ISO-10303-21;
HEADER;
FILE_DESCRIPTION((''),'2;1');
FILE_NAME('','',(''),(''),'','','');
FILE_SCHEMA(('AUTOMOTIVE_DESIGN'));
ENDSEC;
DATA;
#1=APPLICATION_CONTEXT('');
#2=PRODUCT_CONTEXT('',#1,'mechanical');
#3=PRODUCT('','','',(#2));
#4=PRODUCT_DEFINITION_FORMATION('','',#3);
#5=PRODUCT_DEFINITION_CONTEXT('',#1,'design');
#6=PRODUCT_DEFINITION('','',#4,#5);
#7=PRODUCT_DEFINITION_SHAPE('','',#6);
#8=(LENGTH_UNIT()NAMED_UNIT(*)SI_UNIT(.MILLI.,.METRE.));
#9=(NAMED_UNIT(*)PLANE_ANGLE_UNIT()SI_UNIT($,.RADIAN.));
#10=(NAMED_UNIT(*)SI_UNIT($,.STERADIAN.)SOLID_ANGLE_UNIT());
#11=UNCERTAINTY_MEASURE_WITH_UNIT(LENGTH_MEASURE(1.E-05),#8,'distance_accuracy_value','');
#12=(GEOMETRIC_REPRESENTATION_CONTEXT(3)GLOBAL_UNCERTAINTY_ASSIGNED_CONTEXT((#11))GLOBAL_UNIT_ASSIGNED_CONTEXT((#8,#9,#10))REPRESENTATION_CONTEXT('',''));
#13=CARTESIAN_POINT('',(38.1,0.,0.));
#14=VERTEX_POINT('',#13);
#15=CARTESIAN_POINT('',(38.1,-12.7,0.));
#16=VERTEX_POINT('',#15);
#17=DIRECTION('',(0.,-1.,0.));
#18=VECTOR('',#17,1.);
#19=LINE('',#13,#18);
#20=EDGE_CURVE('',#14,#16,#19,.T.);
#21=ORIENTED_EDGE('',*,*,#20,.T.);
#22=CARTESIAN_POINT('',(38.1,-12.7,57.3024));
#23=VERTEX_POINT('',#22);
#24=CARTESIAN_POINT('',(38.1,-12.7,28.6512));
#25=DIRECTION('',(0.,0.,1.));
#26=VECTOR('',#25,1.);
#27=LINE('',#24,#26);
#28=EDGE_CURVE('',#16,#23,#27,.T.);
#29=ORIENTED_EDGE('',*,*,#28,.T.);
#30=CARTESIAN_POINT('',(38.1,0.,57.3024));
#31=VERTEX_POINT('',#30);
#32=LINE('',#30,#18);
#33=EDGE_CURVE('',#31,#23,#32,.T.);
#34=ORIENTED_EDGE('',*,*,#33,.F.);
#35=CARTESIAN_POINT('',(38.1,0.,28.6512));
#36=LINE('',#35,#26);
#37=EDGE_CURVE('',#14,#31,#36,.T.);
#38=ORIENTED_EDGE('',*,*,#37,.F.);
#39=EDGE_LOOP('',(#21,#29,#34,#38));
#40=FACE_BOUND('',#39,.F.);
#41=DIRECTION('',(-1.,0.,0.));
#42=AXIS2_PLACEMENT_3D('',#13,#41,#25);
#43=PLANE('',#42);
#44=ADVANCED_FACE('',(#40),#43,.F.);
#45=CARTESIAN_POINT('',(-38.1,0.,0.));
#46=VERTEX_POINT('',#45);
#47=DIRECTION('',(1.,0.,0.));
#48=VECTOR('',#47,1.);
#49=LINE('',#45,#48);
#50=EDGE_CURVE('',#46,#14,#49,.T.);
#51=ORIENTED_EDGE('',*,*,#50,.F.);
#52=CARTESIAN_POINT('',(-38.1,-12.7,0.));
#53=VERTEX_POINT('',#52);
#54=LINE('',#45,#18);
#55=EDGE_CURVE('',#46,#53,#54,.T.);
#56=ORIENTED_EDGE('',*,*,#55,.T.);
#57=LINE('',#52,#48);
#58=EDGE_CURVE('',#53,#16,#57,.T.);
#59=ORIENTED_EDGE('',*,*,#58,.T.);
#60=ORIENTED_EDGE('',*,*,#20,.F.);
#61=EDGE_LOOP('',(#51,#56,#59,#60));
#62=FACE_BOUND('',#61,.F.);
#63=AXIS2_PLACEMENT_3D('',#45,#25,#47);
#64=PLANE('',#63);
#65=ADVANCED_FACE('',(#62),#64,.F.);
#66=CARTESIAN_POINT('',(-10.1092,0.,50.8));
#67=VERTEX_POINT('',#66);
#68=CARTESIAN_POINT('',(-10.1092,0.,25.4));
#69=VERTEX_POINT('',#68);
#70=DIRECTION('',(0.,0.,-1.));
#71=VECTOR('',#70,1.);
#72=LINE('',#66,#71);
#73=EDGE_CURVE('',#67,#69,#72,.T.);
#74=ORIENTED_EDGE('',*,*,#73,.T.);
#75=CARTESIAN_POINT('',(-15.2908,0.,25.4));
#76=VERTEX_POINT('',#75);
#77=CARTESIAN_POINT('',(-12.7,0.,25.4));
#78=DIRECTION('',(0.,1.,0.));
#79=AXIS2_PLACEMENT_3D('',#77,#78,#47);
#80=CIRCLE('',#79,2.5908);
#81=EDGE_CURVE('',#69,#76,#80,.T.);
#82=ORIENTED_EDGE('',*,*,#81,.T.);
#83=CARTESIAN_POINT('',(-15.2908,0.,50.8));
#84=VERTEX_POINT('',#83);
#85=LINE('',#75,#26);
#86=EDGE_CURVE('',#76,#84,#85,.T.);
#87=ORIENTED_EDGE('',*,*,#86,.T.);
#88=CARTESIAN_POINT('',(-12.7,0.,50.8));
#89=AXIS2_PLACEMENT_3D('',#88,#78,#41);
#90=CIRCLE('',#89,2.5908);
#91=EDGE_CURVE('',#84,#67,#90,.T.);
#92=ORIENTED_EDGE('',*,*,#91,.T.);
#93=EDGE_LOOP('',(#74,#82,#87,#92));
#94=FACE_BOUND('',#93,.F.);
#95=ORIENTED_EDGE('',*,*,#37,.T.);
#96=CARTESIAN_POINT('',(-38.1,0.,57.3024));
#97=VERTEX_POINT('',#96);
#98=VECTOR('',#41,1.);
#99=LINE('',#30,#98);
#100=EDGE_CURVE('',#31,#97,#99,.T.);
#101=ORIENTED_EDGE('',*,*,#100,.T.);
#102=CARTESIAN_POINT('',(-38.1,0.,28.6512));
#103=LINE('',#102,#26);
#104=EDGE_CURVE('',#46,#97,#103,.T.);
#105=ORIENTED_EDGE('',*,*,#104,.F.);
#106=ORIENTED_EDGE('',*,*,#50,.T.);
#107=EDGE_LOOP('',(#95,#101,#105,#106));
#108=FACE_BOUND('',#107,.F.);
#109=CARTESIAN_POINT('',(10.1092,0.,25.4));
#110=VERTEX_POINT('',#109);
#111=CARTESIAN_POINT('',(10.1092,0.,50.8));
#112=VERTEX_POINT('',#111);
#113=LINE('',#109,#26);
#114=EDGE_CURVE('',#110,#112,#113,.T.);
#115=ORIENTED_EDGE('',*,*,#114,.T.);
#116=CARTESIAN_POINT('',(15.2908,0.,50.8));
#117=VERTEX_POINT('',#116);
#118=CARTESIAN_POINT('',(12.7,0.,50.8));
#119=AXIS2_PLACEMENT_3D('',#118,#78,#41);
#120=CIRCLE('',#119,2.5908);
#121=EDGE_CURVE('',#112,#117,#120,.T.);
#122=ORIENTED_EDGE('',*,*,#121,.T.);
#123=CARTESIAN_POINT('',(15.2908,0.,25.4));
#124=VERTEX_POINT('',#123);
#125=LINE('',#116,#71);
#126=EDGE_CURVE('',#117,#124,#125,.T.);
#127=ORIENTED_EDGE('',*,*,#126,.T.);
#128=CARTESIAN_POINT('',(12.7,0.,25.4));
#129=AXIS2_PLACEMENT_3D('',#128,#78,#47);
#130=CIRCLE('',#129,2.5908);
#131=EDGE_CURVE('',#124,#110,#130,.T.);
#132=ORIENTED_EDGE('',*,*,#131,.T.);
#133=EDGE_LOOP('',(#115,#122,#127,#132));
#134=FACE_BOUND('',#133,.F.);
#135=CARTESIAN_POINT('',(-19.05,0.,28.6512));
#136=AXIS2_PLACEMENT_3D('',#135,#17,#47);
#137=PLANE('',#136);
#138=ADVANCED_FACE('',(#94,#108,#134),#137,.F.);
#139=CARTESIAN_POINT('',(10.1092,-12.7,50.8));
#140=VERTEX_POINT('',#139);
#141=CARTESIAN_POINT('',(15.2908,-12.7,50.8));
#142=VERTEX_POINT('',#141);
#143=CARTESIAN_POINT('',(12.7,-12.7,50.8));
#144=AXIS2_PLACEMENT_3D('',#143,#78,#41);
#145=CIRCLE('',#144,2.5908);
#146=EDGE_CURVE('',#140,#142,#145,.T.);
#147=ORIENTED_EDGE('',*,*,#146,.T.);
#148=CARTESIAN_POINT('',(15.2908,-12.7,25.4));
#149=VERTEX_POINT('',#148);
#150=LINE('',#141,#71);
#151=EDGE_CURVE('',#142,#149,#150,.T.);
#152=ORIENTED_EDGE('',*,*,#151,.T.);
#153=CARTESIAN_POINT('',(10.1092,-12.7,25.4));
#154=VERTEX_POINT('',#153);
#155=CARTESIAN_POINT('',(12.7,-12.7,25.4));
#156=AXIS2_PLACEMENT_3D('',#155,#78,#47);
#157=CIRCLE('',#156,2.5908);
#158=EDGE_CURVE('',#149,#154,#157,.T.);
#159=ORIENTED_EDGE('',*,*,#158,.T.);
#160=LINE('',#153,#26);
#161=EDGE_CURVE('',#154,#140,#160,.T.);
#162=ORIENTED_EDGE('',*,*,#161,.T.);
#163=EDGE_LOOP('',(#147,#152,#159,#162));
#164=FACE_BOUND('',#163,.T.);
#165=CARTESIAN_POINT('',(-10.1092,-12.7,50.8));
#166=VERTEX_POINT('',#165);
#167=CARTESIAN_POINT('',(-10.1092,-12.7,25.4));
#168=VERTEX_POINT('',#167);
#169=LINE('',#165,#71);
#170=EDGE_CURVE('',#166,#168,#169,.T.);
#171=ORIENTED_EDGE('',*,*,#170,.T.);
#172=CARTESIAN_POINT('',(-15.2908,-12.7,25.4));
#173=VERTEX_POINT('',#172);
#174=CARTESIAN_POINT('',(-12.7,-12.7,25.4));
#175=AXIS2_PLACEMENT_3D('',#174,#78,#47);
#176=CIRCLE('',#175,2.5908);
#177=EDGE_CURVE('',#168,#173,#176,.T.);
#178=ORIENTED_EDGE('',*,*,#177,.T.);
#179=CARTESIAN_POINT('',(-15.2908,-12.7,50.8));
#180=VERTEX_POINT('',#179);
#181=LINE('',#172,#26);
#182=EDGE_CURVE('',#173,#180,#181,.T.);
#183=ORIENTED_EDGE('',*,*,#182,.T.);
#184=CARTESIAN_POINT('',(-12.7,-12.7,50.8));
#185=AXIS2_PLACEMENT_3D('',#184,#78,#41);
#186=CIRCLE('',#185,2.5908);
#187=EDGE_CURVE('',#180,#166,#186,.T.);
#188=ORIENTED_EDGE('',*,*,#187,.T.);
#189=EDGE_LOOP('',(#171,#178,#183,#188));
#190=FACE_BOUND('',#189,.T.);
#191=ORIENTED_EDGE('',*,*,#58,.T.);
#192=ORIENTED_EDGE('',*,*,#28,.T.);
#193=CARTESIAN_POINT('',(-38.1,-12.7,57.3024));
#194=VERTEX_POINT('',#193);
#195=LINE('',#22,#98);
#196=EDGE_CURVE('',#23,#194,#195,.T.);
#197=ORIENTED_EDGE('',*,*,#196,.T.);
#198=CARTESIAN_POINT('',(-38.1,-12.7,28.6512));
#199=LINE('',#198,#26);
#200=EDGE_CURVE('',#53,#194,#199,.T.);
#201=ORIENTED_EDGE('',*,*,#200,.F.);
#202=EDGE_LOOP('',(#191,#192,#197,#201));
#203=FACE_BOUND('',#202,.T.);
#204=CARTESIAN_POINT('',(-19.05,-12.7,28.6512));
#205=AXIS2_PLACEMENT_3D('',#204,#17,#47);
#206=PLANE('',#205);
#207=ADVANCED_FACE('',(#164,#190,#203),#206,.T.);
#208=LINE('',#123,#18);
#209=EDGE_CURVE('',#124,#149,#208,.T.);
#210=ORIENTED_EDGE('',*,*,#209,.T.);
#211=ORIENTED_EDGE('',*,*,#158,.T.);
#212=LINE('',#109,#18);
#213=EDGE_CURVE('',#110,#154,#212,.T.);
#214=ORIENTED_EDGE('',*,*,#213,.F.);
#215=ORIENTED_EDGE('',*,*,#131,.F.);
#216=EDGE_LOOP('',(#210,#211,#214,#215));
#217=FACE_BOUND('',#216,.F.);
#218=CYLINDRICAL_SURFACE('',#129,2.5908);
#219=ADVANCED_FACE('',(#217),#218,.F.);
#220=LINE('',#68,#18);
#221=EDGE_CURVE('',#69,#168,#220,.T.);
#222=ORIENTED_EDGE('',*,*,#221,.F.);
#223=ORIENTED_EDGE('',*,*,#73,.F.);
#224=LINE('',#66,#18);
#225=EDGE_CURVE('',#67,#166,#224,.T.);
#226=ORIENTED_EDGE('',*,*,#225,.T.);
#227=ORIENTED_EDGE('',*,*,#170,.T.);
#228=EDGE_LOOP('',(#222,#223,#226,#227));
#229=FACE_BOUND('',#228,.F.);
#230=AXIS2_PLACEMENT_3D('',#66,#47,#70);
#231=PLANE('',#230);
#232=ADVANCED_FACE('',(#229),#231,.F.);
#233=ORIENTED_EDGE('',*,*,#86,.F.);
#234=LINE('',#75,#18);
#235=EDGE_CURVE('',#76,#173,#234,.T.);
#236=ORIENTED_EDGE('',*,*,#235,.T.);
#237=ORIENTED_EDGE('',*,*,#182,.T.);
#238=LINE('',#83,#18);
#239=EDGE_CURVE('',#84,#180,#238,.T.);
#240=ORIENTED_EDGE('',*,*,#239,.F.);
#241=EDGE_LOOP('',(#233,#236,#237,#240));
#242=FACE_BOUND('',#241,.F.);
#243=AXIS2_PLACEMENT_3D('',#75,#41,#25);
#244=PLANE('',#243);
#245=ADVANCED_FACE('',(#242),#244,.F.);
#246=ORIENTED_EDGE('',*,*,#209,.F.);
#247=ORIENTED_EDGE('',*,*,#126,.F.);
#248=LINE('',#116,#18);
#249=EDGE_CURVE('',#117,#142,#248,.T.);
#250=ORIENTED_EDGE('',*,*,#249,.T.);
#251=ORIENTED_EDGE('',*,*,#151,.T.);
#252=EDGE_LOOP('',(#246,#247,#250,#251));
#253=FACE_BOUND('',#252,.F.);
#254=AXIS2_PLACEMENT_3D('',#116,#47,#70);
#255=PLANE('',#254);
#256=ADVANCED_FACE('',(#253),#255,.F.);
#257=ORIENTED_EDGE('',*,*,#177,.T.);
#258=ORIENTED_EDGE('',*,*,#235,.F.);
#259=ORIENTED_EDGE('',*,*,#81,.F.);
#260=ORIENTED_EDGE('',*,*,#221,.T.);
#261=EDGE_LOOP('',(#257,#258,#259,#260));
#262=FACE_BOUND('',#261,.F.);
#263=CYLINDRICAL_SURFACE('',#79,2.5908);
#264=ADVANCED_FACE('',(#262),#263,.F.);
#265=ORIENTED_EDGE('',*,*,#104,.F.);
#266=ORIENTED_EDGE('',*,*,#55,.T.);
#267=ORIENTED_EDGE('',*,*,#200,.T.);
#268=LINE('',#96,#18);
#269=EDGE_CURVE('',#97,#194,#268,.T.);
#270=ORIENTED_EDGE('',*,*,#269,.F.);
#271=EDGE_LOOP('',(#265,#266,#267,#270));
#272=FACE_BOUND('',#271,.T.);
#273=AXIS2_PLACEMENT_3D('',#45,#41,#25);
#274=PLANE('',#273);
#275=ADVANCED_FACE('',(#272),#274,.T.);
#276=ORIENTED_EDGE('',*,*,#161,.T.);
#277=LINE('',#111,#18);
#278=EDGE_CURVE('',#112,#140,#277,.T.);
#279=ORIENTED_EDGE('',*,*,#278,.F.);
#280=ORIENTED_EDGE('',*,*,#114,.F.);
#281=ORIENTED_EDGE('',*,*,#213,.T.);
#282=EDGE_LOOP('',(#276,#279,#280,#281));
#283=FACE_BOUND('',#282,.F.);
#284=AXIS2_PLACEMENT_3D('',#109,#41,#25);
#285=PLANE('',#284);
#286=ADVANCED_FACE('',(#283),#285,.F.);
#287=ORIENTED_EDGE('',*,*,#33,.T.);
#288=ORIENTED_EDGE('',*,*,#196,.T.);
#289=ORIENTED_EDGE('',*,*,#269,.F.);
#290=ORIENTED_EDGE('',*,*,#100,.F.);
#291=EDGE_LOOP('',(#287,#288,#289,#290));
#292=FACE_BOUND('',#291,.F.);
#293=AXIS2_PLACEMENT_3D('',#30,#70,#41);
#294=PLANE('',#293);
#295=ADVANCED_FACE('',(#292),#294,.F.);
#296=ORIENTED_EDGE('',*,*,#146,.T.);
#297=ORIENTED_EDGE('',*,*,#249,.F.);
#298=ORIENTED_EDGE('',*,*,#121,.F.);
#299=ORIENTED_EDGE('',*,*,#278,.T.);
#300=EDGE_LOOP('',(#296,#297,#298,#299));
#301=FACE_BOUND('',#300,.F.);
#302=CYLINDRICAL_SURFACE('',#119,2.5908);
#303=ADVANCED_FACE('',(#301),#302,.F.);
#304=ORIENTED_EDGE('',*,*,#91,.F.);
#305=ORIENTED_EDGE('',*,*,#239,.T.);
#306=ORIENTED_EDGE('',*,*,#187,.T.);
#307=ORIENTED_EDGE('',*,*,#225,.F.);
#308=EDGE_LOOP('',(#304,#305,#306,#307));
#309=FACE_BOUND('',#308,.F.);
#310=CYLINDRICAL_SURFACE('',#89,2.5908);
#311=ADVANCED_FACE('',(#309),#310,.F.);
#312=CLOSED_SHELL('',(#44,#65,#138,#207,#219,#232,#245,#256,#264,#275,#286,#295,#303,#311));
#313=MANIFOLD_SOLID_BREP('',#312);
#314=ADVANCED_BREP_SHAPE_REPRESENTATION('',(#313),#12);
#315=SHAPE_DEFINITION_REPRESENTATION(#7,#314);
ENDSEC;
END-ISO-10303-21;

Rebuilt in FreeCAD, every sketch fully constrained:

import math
import FreeCAD as App
import Part
import Sketcher
from FreeCAD import Vector
Q = App.Units.Quantity

doc = App.newDocument("Part")
body = doc.addObject("PartDesign::Body", "Body")

# Sketch on XZ plane
sketch1 = doc.addObject("Sketcher::SketchObject", "Sketch")
body.addObject(sketch1)
sketch1.AttachmentSupport = (doc.XZ_Plane, [""])
sketch1.MapMode = "FlatFace"
sketch1.addGeometry(Part.LineSegment(Vector(-38.1, 57.3, 0), Vector(-38.1, 0, 0)), False)
sketch1.addGeometry(Part.LineSegment(Vector(-38.1, 0, 0), Vector(38.1, 0, 0)), False)
sketch1.addGeometry(Part.LineSegment(Vector(38.1, 0, 0), Vector(38.1, 57.3, 0)), False)
sketch1.addGeometry(Part.LineSegment(Vector(38.1, 57.3, 0), Vector(-38.1, 57.3, 0)), False)
sketch1.addGeometry(Part.ArcOfCircle(Part.Circle(Vector(-12.7, 50.8, 0), Vector(0, 0, 1), 2.6), math.radians(0), math.radians(180)), False)
sketch1.addGeometry(Part.LineSegment(Vector(-10.1, 50.8, 0), Vector(-10.1, 25.4, 0)), False)
sketch1.addGeometry(Part.ArcOfCircle(Part.Circle(Vector(-12.7, 25.4, 0), Vector(0, 0, 1), 2.6), math.radians(180), math.radians(360)), False)
sketch1.addGeometry(Part.LineSegment(Vector(-15.3, 25.4, 0), Vector(-15.3, 50.8, 0)), False)
sketch1.addGeometry(Part.ArcOfCircle(Part.Circle(Vector(12.7, 25.4, 0), Vector(0, 0, 1), 2.6), math.radians(180), math.radians(360)), False)
sketch1.addGeometry(Part.LineSegment(Vector(10.1, 25.4, 0), Vector(10.1, 50.8, 0)), False)
sketch1.addGeometry(Part.ArcOfCircle(Part.Circle(Vector(12.7, 50.8, 0), Vector(0, 0, 1), 2.6), math.radians(0), math.radians(180)), False)
sketch1.addGeometry(Part.LineSegment(Vector(15.3, 50.8, 0), Vector(15.3, 25.4, 0)), False)
sketch1.addConstraint(Sketcher.Constraint("Coincident", 0, 2, 1, 1))
sketch1.addConstraint(Sketcher.Constraint("Coincident", 1, 2, 2, 1))
sketch1.addConstraint(Sketcher.Constraint("Coincident", 2, 2, 3, 1))
sketch1.addConstraint(Sketcher.Constraint("Coincident", 3, 2, 0, 1))
sketch1.addConstraint(Sketcher.Constraint("Tangent", 4, 1, 5, 1))
sketch1.addConstraint(Sketcher.Constraint("Tangent", 5, 2, 6, 2))
sketch1.addConstraint(Sketcher.Constraint("Tangent", 6, 1, 7, 1))
sketch1.addConstraint(Sketcher.Constraint("Tangent", 7, 2, 4, 2))
sketch1.addConstraint(Sketcher.Constraint("Tangent", 8, 1, 9, 1))
sketch1.addConstraint(Sketcher.Constraint("Tangent", 9, 2, 10, 2))
sketch1.addConstraint(Sketcher.Constraint("Tangent", 10, 1, 11, 1))
sketch1.addConstraint(Sketcher.Constraint("Tangent", 11, 2, 8, 2))
sketch1.addConstraint(Sketcher.Constraint("Vertical", 0))
sketch1.addConstraint(Sketcher.Constraint("Horizontal", 1))
sketch1.addConstraint(Sketcher.Constraint("Vertical", 2))
sketch1.addConstraint(Sketcher.Constraint("Horizontal", 3))
sketch1.addConstraint(Sketcher.Constraint("Vertical", 5))
sketch1.addConstraint(Sketcher.Constraint("Vertical", 7))
sketch1.addConstraint(Sketcher.Constraint("Vertical", 9))
sketch1.addConstraint(Sketcher.Constraint("Vertical", 11))
sketch1.addConstraint(Sketcher.Constraint("Equal", 6, 8))
sketch1.addConstraint(Sketcher.Constraint("Symmetric", 0, 2, 1, 2, -1, 1))
sketch1.addConstraint(Sketcher.Constraint("Symmetric", 6, 3, 8, 3, -2))
sketch1.addConstraint(Sketcher.Constraint("Horizontal", 4, 3, 10, 3))
sketch1.addConstraint(Sketcher.Constraint("DistanceX", 1, 1, 1, 2, Q("3 in")))
sketch1.addConstraint(Sketcher.Constraint("DistanceY", 5, 2, 5, 1, Q("1 in")))
sketch1.addConstraint(Sketcher.Constraint("DistanceY", -1, 1, 4, 3, Q("2 in")))
sketch1.addConstraint(Sketcher.Constraint("Radius", 4, Q("0.102 in")))
sketch1.addConstraint(Sketcher.Constraint("DistanceX", 6, 3, 8, 3, Q("1 in")))
sketch1.addConstraint(Sketcher.Constraint("DistanceY", 0, 2, 0, 1, Q("2.256 in")))
pad1 = doc.addObject("PartDesign::Pad", "Pad")
body.addObject(pad1)
pad1.Profile = sketch1
pad1.Length = Q("0.5 in")

doc.recompute()
